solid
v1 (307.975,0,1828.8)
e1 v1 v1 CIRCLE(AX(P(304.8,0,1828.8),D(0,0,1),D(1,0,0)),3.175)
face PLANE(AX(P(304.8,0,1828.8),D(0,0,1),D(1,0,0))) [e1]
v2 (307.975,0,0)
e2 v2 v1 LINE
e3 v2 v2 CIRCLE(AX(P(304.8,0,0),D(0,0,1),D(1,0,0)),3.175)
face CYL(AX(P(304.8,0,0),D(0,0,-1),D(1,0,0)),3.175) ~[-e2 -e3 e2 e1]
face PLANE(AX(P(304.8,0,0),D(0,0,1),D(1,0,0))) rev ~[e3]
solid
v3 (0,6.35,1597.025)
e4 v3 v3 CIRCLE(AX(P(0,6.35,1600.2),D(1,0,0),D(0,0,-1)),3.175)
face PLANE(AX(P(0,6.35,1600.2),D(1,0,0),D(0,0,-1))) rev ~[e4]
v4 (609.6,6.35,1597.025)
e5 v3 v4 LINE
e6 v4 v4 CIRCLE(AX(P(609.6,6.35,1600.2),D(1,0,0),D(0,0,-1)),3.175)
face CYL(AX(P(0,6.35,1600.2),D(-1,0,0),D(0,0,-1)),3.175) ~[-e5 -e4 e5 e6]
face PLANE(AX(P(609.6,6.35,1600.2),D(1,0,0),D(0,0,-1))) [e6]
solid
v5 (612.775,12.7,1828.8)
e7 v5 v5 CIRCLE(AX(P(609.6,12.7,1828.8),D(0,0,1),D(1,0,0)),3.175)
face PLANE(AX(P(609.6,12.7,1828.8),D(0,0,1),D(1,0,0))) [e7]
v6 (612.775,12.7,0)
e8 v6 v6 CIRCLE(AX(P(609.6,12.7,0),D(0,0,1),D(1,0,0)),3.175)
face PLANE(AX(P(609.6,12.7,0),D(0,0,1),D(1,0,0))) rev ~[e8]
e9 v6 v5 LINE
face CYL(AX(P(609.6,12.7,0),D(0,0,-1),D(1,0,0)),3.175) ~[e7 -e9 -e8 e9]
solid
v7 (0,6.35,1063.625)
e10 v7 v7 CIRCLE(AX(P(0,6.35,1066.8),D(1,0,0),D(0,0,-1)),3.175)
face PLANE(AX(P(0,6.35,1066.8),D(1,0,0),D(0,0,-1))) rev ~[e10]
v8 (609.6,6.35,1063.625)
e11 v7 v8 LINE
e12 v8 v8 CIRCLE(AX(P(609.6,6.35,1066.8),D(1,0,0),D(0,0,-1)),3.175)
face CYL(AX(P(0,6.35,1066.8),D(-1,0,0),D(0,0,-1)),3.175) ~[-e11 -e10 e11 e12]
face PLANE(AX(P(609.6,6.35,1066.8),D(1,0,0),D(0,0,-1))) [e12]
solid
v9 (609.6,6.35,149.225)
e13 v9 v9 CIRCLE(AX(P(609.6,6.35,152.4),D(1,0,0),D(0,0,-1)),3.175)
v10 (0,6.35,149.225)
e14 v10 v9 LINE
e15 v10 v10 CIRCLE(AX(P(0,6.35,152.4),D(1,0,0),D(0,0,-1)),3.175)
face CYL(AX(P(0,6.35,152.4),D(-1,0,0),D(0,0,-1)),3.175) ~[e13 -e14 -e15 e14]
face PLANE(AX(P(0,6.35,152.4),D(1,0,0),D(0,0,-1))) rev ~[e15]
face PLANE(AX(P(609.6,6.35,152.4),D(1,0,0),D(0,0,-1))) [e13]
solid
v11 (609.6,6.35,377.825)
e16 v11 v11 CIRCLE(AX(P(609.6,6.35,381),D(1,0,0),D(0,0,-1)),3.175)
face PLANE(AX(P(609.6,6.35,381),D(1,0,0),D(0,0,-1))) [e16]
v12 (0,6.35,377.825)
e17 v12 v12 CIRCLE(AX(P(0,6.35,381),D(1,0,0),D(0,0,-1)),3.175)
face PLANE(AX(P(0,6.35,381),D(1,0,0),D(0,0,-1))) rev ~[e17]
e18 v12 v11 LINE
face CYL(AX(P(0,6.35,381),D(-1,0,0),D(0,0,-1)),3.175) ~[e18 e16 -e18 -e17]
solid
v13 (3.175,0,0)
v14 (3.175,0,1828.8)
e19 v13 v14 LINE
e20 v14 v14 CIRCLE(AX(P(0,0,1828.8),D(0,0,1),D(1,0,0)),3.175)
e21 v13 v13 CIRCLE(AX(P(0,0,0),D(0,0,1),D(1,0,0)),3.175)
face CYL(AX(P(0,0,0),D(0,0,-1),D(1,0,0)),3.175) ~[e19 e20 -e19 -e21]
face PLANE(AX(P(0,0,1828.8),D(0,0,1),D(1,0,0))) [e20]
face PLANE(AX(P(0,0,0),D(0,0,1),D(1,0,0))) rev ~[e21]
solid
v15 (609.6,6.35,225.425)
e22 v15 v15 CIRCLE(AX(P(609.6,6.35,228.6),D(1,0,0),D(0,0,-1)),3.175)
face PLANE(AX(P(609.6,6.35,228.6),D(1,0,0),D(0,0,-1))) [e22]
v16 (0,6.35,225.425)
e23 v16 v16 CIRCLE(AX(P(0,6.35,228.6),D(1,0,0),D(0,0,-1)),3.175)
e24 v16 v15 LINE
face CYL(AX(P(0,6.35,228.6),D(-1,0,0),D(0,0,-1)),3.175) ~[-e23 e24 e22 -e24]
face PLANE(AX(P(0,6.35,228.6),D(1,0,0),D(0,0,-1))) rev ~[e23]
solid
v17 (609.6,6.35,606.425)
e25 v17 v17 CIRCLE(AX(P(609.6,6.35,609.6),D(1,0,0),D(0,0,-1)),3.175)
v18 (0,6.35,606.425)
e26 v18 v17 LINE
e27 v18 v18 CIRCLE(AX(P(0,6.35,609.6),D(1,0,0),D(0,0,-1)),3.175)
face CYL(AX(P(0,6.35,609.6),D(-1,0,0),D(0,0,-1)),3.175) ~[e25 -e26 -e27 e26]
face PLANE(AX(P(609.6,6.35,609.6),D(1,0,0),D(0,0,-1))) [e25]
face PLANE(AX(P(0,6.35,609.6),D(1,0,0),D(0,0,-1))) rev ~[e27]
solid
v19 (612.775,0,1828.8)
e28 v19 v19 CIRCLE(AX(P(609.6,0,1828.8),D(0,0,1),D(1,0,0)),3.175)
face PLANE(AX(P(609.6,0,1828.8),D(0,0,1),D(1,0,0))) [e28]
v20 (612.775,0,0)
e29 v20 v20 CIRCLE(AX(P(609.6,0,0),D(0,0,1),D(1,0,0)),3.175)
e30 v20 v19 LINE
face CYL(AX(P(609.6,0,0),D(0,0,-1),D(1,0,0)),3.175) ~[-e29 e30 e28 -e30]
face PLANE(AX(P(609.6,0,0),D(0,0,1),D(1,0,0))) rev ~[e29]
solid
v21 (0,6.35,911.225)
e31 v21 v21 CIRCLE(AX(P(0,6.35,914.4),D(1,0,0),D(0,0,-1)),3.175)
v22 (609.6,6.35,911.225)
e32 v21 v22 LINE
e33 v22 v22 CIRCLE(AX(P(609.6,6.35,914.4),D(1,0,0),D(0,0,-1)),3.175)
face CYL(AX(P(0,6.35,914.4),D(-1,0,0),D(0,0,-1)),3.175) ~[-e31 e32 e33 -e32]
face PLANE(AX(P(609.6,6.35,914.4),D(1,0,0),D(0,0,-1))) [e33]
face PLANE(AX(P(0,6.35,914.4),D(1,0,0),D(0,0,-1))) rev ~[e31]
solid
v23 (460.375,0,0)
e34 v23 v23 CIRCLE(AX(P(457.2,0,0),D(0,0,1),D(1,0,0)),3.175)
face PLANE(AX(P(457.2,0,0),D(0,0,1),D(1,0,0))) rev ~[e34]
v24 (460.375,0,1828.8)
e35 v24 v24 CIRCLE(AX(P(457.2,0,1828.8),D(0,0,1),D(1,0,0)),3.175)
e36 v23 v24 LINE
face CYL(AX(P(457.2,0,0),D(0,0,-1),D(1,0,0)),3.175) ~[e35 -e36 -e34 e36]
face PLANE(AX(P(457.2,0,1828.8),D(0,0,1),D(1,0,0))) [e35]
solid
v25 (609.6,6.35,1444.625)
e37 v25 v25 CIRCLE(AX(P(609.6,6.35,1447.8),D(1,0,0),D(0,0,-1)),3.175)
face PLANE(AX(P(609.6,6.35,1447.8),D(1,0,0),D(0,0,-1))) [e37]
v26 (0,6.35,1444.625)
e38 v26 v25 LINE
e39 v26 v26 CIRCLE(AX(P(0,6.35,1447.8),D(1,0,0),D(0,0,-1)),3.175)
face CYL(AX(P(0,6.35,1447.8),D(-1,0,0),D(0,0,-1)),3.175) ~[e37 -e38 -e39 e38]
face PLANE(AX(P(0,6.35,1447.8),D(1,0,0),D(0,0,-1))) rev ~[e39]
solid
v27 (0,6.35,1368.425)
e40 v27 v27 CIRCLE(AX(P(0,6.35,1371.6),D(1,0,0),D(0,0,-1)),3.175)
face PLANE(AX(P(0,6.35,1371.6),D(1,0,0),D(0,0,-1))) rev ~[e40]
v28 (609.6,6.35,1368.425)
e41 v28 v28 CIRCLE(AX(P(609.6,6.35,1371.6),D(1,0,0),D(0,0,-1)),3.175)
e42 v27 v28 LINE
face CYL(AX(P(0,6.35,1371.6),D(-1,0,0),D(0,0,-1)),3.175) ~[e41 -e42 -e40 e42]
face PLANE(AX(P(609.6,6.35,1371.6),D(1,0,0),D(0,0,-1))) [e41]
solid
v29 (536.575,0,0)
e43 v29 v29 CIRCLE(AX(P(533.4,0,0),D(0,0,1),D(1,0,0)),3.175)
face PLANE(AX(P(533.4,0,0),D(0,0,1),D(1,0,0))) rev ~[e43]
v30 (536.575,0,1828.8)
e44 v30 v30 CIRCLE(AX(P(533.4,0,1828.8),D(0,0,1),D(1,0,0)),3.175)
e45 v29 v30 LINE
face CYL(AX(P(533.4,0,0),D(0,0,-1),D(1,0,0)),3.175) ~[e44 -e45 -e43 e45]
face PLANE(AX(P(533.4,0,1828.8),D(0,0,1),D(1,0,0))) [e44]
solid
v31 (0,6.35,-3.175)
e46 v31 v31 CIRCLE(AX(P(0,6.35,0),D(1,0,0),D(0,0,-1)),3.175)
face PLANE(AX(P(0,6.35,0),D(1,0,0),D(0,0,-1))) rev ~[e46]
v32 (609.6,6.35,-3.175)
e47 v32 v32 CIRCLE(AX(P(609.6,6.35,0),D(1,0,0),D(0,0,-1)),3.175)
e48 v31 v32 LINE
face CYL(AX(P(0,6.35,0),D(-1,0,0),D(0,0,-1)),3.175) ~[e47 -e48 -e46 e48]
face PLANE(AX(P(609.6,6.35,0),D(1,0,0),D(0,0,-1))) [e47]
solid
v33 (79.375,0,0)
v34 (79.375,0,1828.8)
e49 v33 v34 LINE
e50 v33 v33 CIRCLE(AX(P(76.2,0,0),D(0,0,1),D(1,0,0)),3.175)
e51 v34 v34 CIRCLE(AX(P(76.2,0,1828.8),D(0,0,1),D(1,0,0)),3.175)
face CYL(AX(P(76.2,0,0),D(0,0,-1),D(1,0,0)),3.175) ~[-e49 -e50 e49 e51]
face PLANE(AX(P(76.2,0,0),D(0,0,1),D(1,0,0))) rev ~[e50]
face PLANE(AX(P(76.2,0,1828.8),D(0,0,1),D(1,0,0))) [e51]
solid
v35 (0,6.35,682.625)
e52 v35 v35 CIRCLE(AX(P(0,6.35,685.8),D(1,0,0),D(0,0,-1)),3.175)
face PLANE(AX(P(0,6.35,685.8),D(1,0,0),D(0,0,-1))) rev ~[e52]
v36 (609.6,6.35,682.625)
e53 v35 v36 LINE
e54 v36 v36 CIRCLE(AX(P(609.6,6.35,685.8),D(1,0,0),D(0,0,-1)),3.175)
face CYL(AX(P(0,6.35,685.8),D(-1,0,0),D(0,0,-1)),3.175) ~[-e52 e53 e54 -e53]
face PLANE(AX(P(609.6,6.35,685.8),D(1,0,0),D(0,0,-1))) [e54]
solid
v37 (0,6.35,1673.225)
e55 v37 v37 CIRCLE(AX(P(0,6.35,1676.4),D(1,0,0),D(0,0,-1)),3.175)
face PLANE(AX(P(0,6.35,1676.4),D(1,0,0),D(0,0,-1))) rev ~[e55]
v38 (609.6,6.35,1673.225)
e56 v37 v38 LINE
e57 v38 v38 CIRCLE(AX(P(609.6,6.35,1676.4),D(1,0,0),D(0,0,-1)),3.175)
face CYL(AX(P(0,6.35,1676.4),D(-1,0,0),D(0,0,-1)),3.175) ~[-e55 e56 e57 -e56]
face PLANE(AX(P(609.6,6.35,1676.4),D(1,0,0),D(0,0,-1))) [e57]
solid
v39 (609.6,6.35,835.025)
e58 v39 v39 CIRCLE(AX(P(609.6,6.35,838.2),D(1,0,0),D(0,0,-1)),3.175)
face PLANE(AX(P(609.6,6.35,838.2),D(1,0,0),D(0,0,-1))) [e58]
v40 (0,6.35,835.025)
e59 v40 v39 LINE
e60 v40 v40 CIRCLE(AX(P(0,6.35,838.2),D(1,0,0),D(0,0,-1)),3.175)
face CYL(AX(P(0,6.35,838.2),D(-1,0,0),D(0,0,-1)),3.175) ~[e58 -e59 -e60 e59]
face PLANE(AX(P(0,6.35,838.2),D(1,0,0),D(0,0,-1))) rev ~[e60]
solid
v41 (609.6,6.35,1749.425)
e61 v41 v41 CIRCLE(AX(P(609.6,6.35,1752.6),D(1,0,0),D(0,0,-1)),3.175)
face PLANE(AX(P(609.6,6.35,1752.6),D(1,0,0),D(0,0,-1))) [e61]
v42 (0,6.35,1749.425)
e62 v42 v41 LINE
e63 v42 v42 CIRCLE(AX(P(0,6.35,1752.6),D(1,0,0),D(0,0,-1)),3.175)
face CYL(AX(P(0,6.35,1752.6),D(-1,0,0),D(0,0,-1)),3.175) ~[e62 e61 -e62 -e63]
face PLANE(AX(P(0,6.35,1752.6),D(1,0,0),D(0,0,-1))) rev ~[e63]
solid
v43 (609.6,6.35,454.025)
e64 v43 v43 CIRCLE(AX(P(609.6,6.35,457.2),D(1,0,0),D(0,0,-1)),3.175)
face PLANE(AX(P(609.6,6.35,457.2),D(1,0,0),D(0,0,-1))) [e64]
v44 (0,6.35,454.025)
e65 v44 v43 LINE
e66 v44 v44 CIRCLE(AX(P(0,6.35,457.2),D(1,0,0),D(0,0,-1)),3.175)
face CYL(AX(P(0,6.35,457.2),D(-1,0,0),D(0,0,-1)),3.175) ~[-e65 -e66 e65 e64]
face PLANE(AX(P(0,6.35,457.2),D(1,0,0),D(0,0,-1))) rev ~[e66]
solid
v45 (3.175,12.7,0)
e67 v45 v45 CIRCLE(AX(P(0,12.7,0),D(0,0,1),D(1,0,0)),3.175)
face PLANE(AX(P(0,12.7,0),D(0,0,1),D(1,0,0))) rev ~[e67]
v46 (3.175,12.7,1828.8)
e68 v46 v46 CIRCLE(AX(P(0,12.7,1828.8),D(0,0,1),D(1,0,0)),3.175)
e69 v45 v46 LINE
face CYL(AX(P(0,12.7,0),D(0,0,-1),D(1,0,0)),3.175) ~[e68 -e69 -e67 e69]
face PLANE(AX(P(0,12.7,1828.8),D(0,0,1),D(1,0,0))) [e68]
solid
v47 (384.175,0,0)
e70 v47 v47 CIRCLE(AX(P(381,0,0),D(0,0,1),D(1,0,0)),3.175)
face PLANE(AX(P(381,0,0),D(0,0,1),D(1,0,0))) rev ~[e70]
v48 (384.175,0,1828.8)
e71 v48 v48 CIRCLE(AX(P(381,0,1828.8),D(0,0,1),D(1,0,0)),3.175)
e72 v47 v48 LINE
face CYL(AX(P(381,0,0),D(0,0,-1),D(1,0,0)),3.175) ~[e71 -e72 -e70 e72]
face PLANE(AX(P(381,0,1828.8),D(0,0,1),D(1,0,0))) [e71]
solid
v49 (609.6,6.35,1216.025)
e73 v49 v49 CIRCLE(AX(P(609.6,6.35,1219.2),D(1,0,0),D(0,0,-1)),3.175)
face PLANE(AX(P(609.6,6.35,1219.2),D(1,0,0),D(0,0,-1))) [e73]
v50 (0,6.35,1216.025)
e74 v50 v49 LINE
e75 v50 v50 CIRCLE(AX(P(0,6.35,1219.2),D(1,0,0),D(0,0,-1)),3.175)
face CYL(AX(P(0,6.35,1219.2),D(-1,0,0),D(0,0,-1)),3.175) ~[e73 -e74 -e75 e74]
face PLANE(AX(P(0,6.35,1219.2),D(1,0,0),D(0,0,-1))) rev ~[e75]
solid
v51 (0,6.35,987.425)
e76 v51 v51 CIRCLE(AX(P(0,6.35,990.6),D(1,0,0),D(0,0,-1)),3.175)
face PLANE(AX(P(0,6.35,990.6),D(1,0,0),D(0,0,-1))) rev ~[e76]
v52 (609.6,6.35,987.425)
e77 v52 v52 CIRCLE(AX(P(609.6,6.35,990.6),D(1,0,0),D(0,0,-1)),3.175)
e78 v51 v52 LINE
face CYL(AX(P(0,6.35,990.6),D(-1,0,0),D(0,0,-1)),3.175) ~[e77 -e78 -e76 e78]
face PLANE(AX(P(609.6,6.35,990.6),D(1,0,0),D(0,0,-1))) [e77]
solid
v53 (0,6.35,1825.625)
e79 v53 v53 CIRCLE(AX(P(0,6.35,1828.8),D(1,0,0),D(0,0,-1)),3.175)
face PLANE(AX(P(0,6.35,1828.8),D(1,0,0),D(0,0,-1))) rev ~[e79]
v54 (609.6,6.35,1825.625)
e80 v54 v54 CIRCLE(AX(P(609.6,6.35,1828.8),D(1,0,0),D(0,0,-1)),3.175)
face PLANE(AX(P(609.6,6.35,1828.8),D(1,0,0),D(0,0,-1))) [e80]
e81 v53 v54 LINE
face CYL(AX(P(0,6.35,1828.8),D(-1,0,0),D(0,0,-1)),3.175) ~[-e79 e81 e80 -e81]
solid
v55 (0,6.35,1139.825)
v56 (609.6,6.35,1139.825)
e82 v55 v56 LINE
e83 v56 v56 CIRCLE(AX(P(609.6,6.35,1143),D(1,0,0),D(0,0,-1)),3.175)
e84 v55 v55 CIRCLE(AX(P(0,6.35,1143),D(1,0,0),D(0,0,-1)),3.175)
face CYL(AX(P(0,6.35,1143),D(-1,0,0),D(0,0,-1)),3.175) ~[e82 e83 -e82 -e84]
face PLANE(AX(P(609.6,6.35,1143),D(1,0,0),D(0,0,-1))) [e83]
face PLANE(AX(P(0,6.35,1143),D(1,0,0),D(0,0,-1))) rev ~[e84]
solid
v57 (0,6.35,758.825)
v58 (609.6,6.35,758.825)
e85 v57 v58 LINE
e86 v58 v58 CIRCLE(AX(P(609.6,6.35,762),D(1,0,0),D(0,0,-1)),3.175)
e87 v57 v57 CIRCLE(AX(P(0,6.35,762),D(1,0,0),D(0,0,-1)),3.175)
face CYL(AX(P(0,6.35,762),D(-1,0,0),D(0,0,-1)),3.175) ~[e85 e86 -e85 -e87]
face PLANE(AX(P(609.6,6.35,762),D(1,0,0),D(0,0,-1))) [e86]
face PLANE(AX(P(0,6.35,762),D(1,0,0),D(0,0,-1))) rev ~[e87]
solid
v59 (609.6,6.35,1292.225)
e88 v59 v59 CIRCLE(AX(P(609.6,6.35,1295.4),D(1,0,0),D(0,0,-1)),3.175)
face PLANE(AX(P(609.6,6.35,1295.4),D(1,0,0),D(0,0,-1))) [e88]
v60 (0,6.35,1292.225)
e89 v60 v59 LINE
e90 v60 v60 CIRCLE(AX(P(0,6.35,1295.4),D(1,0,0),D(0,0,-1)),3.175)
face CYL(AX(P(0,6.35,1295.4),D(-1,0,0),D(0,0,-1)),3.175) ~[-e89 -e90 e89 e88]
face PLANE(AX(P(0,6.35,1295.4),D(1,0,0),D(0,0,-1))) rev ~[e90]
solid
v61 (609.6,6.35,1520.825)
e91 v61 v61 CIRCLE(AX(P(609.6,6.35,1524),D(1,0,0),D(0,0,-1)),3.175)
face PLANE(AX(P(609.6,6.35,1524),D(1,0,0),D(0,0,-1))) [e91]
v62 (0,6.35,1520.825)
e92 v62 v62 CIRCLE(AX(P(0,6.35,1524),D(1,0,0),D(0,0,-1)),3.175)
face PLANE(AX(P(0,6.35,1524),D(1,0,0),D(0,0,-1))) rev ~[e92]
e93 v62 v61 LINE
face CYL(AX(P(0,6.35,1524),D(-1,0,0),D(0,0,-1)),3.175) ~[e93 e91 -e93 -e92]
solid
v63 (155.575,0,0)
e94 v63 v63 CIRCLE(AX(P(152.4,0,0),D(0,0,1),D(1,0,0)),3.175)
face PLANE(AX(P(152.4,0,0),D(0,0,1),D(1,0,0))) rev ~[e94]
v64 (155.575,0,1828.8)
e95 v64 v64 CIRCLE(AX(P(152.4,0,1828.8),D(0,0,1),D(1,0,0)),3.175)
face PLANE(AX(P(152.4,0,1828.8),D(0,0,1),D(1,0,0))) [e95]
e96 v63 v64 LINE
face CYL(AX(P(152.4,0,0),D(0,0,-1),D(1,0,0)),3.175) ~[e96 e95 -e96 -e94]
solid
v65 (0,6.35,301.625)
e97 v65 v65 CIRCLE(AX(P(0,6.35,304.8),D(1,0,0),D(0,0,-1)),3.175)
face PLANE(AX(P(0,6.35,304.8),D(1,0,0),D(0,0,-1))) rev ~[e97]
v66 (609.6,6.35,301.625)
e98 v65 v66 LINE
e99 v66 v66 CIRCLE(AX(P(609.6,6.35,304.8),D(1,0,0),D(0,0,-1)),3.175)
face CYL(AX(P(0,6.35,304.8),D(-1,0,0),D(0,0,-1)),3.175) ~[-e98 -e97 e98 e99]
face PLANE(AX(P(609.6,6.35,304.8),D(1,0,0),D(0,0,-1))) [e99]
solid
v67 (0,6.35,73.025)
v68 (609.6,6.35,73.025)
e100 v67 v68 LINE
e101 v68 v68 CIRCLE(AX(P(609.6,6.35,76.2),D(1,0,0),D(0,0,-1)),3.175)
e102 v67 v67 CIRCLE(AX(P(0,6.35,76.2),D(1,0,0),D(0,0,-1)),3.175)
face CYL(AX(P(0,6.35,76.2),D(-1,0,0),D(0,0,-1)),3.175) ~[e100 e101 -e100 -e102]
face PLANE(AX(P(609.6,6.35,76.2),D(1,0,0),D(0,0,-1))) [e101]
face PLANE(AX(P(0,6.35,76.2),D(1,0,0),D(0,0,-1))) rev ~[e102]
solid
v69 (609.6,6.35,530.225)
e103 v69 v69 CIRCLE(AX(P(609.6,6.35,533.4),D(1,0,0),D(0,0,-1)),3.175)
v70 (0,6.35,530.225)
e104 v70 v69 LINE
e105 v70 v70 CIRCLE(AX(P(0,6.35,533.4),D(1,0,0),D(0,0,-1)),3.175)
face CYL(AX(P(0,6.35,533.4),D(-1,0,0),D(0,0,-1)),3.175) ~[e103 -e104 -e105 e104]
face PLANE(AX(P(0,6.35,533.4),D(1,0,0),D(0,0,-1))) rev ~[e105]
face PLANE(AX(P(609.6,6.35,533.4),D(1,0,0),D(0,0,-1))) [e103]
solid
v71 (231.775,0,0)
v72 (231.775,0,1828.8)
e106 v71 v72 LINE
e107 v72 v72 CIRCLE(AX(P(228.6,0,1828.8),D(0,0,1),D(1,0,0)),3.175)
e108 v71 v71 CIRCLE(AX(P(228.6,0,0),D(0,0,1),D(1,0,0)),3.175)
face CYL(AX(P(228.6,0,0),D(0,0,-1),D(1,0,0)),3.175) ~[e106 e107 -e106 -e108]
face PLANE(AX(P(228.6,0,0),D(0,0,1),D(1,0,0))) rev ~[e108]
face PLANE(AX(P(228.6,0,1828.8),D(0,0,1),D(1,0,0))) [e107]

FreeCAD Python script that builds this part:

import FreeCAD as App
import Part
import Sketcher
from FreeCAD import Vector
Q = App.Units.Quantity

doc = App.newDocument("Part")
params = doc.addObject("Spreadsheet::Sheet", "Params")
for row, (alias, value) in enumerate([
    ("sketch1_diameter", "0.25 in"),
    ("pad1_length", "72 in"),
    ("sketch2_diameter", "0.25 in"),
    ("pad2_length", "72 in"),
    ("sketch3_diameter", "0.25 in"),
    ("pad3_length", "72 in"),
    ("sketch4_diameter", "0.25 in"),
    ("pad4_length", "72 in"),
    ("sketch5_diameter", "0.25 in"),
    ("pad5_length", "72 in"),
    ("sketch6_diameter", "0.25 in"),
    ("pad6_length", "72 in"),
    ("sketch7_diameter", "0.25 in"),
    ("pad7_length", "72 in"),
    ("sketch8_diameter", "0.25 in"),
    ("pad8_length", "72 in"),
    ("sketch9_diameter", "0.25 in"),
    ("pad9_length", "72 in"),
    ("sketch10_diameter", "0.25 in"),
    ("pad10_length", "72 in"),
    ("sketch11_diameter", "0.25 in"),
    ("pad11_length", "72 in"),
    ("sketch12_diameter", "0.25 in"),
    ("pad12_length", "24 in"),
    ("sketch13_diameter", "0.25 in"),
    ("pad13_length", "24 in"),
    ("sketch14_diameter", "0.25 in"),
    ("pad14_length", "24 in"),
    ("sketch15_diameter", "0.25 in"),
    ("pad15_length", "24 in"),
    ("sketch16_diameter", "0.25 in"),
    ("pad16_length", "24 in"),
    ("sketch17_diameter", "0.25 in"),
    ("pad17_length", "24 in"),
    ("sketch18_diameter", "0.25 in"),
    ("pad18_length", "24 in"),
    ("sketch19_diameter", "0.25 in"),
    ("pad19_length", "24 in"),
    ("sketch20_diameter", "0.25 in"),
    ("pad20_length", "24 in"),
    ("sketch21_diameter", "0.25 in"),
    ("pad21_length", "24 in"),
    ("sketch22_diameter", "0.25 in"),
    ("pad22_length", "24 in"),
    ("sketch23_diameter", "0.25 in"),
    ("pad23_length", "24 in"),
    ("sketch24_diameter", "0.25 in"),
    ("pad24_length", "24 in"),
    ("sketch25_diameter", "0.25 in"),
    ("pad25_length", "24 in"),
    ("sketch26_diameter", "0.25 in"),
    ("pad26_length", "24 in"),
    ("sketch27_diameter", "0.25 in"),
    ("pad27_length", "24 in"),
    ("sketch28_diameter", "0.25 in"),
    ("pad28_length", "24 in"),
    ("sketch29_diameter", "0.25 in"),
    ("pad29_length", "24 in"),
    ("sketch30_diameter", "0.25 in"),
    ("pad30_length", "24 in"),
    ("sketch31_diameter", "0.25 in"),
    ("pad31_length", "24 in"),
    ("sketch32_diameter", "0.25 in"),
    ("pad32_length", "24 in"),
    ("sketch33_diameter", "0.25 in"),
    ("pad33_length", "24 in"),
    ("sketch34_diameter", "0.25 in"),
    ("pad34_length", "24 in"),
    ("sketch35_diameter", "0.25 in"),
    ("pad35_length", "24 in"),
    ("sketch36_diameter", "0.25 in"),
    ("pad36_length", "24 in"),
], start=1):
    params.set(f"A{row}", alias)
    params.set(f"B{row}", "=" + value)
    params.setAlias(f"B{row}", alias)

body = doc.addObject("PartDesign::Body", "Body")

# Sketch on XY plane
sketch1 = doc.addObject("Sketcher::SketchObject", "Sketch")
body.addObject(sketch1)
sketch1.AttachmentSupport = (doc.XY_Plane, [""])
sketch1.MapMode = "FlatFace"
sketch1.addGeometry(Part.Circle(Vector(0, 0, 0), Vector(0, 0, 1), 3.2), False)
sketch1.addConstraint(Sketcher.Constraint("Coincident", 0, 3, -1, 1))
sketch1.addConstraint(Sketcher.Constraint("Diameter", 0, Q("0.25 in")))
sketch1.setExpression("Constraints[1]", "Params.sketch1_diameter")
pad1 = doc.addObject("PartDesign::Pad", "Pad")
body.addObject(pad1)
pad1.Profile = sketch1
pad1.setExpression("Length", "Params.pad1_length")
body2 = doc.addObject("PartDesign::Body", "Body001")

# Sketch on XY plane
sketch2 = doc.addObject("Sketcher::SketchObject", "Sketch001")
body2.addObject(sketch2)
sketch2.AttachmentSupport = (doc.getObject("XY_Plane001"), [""])
sketch2.MapMode = "FlatFace"
sketch2.addGeometry(Part.Circle(Vector(0, 12.7, 0), Vector(0, 0, 1), 3.2), False)
sketch2.addConstraint(Sketcher.Constraint("PointOnObject", 0, 3, -2))
sketch2.addConstraint(Sketcher.Constraint("Diameter", 0, Q("0.25 in")))
sketch2.addConstraint(Sketcher.Constraint("DistanceY", -1, 1, 0, 3, Q("0.5 in")))
sketch2.setExpression("Constraints[1]", "Params.sketch2_diameter")
pad2 = doc.addObject("PartDesign::Pad", "Pad001")
body2.addObject(pad2)
pad2.Profile = sketch2
pad2.setExpression("Length", "Params.pad2_length")
body3 = doc.addObject("PartDesign::Body", "Body002")

# Sketch on XY plane
sketch3 = doc.addObject("Sketcher::SketchObject", "Sketch002")
body3.addObject(sketch3)
sketch3.AttachmentSupport = (doc.getObject("XY_Plane002"), [""])
sketch3.MapMode = "FlatFace"
sketch3.addGeometry(Part.Circle(Vector(76.2, 0, 0), Vector(0, 0, 1), 3.2), False)
sketch3.addConstraint(Sketcher.Constraint("PointOnObject", 0, 3, -1))
sketch3.addConstraint(Sketcher.Constraint("Diameter", 0, Q("0.25 in")))
sketch3.addConstraint(Sketcher.Constraint("DistanceX", -1, 1, 0, 3, Q("3 in")))
sketch3.setExpression("Constraints[1]", "Params.sketch3_diameter")
pad3 = doc.addObject("PartDesign::Pad", "Pad002")
body3.addObject(pad3)
pad3.Profile = sketch3
pad3.setExpression("Length", "Params.pad3_length")
body4 = doc.addObject("PartDesign::Body", "Body003")

# Sketch on XY plane
sketch4 = doc.addObject("Sketcher::SketchObject", "Sketch003")
body4.addObject(sketch4)
sketch4.AttachmentSupport = (doc.getObject("XY_Plane003"), [""])
sketch4.MapMode = "FlatFace"
sketch4.addGeometry(Part.Circle(Vector(152.4, 0, 0), Vector(0, 0, 1), 3.2), False)
sketch4.addConstraint(Sketcher.Constraint("PointOnObject", 0, 3, -1))
sketch4.addConstraint(Sketcher.Constraint("Diameter", 0, Q("0.25 in")))
sketch4.addConstraint(Sketcher.Constraint("DistanceX", -1, 1, 0, 3, Q("6 in")))
sketch4.setExpression("Constraints[1]", "Params.sketch4_diameter")
pad4 = doc.addObject("PartDesign::Pad", "Pad003")
body4.addObject(pad4)
pad4.Profile = sketch4
pad4.setExpression("Length", "Params.pad4_length")
body5 = doc.addObject("PartDesign::Body", "Body004")

# Sketch on XY plane
sketch5 = doc.addObject("Sketcher::SketchObject", "Sketch004")
body5.addObject(sketch5)
sketch5.AttachmentSupport = (doc.getObject("XY_Plane004"), [""])
sketch5.MapMode = "FlatFace"
sketch5.addGeometry(Part.Circle(Vector(228.6, 0, 0), Vector(0, 0, 1), 3.2), False)
sketch5.addConstraint(Sketcher.Constraint("PointOnObject", 0, 3, -1))
sketch5.addConstraint(Sketcher.Constraint("Diameter", 0, Q("0.25 in")))
sketch5.addConstraint(Sketcher.Constraint("DistanceX", -1, 1, 0, 3, Q("9 in")))
sketch5.setExpression("Constraints[1]", "Params.sketch5_diameter")
pad5 = doc.addObject("PartDesign::Pad", "Pad004")
body5.addObject(pad5)
pad5.Profile = sketch5
pad5.setExpression("Length", "Params.pad5_length")
body6 = doc.addObject("PartDesign::Body", "Body005")

# Sketch on XY plane
sketch6 = doc.addObject("Sketcher::SketchObject", "Sketch005")
body6.addObject(sketch6)
sketch6.AttachmentSupport = (doc.getObject("XY_Plane005"), [""])
sketch6.MapMode = "FlatFace"
sketch6.addGeometry(Part.Circle(Vector(304.8, 0, 0), Vector(0, 0, 1), 3.2), False)
sketch6.addConstraint(Sketcher.Constraint("PointOnObject", 0, 3, -1))
sketch6.addConstraint(Sketcher.Constraint("Diameter", 0, Q("0.25 in")))
sketch6.addConstraint(Sketcher.Constraint("DistanceX", -1, 1, 0, 3, Q("12 in")))
sketch6.setExpression("Constraints[1]", "Params.sketch6_diameter")
pad6 = doc.addObject("PartDesign::Pad", "Pad005")
body6.addObject(pad6)
pad6.Profile = sketch6
pad6.setExpression("Length", "Params.pad6_length")
body7 = doc.addObject("PartDesign::Body", "Body006")

# Sketch on XY plane
sketch7 = doc.addObject("Sketcher::SketchObject", "Sketch006")
body7.addObject(sketch7)
sketch7.AttachmentSupport = (doc.getObject("XY_Plane006"), [""])
sketch7.MapMode = "FlatFace"
sketch7.addGeometry(Part.Circle(Vector(381, 0, 0), Vector(0, 0, 1), 3.2), False)
sketch7.addConstraint(Sketcher.Constraint("PointOnObject", 0, 3, -1))
sketch7.addConstraint(Sketcher.Constraint("Diameter", 0, Q("0.25 in")))
sketch7.addConstraint(Sketcher.Constraint("DistanceX", -1, 1, 0, 3, Q("15 in")))
sketch7.setExpression("Constraints[1]", "Params.sketch7_diameter")
pad7 = doc.addObject("PartDesign::Pad", "Pad006")
body7.addObject(pad7)
pad7.Profile = sketch7
pad7.setExpression("Length", "Params.pad7_length")
body8 = doc.addObject("PartDesign::Body", "Body007")

# Sketch on XY plane
sketch8 = doc.addObject("Sketcher::SketchObject", "Sketch007")
body8.addObject(sketch8)
sketch8.AttachmentSupport = (doc.getObject("XY_Plane007"), [""])
sketch8.MapMode = "FlatFace"
sketch8.addGeometry(Part.Circle(Vector(457.2, 0, 0), Vector(0, 0, 1), 3.2), False)
sketch8.addConstraint(Sketcher.Constraint("PointOnObject", 0, 3, -1))
sketch8.addConstraint(Sketcher.Constraint("Diameter", 0, Q("0.25 in")))
sketch8.addConstraint(Sketcher.Constraint("DistanceX", -1, 1, 0, 3, Q("18 in")))
sketch8.setExpression("Constraints[1]", "Params.sketch8_diameter")
pad8 = doc.addObject("PartDesign::Pad", "Pad007")
body8.addObject(pad8)
pad8.Profile = sketch8
pad8.setExpression("Length", "Params.pad8_length")
body9 = doc.addObject("PartDesign::Body", "Body008")

# Sketch on XY plane
sketch9 = doc.addObject("Sketcher::SketchObject", "Sketch008")
body9.addObject(sketch9)
sketch9.AttachmentSupport = (doc.getObject("XY_Plane008"), [""])
sketch9.MapMode = "FlatFace"
sketch9.addGeometry(Part.Circle(Vector(533.4, 0, 0), Vector(0, 0, 1), 3.2), False)
sketch9.addConstraint(Sketcher.Constraint("PointOnObject", 0, 3, -1))
sketch9.addConstraint(Sketcher.Constraint("Diameter", 0, Q("0.25 in")))
sketch9.addConstraint(Sketcher.Constraint("DistanceX", -1, 1, 0, 3, Q("21 in")))
sketch9.setExpression("Constraints[1]", "Params.sketch9_diameter")
pad9 = doc.addObject("PartDesign::Pad", "Pad008")
body9.addObject(pad9)
pad9.Profile = sketch9
pad9.setExpression("Length", "Params.pad9_length")
body10 = doc.addObject("PartDesign::Body", "Body009")

# Sketch on XY plane
sketch10 = doc.addObject("Sketcher::SketchObject", "Sketch009")
body10.addObject(sketch10)
sketch10.AttachmentSupport = (doc.getObject("XY_Plane009"), [""])
sketch10.MapMode = "FlatFace"
sketch10.addGeometry(Part.Circle(Vector(609.6, 0, 0), Vector(0, 0, 1), 3.2), False)
sketch10.addConstraint(Sketcher.Constraint("PointOnObject", 0, 3, -1))
sketch10.addConstraint(Sketcher.Constraint("Diameter", 0, Q("0.25 in")))
sketch10.addConstraint(Sketcher.Constraint("DistanceX", -1, 1, 0, 3, Q("24 in")))
sketch10.setExpression("Constraints[1]", "Params.sketch10_diameter")
pad10 = doc.addObject("PartDesign::Pad", "Pad009")
body10.addObject(pad10)
pad10.Profile = sketch10
pad10.setExpression("Length", "Params.pad10_length")
body11 = doc.addObject("PartDesign::Body", "Body010")

# Sketch on XY plane
sketch11 = doc.addObject("Sketcher::SketchObject", "Sketch010")
body11.addObject(sketch11)
sketch11.AttachmentSupport = (doc.getObject("XY_Plane010"), [""])
sketch11.MapMode = "FlatFace"
sketch11.addGeometry(Part.Circle(Vector(609.6, 12.7, 0), Vector(0, 0, 1), 3.2), False)
sketch11.addConstraint(Sketcher.Constraint("Diameter", 0, Q("0.25 in")))
sketch11.addConstraint(Sketcher.Constraint("DistanceX", -1, 1, 0, 3, Q("24 in")))
sketch11.addConstraint(Sketcher.Constraint("DistanceY", -1, 1, 0, 3, Q("0.5 in")))
sketch11.setExpression("Constraints[0]", "Params.sketch11_diameter")
pad11 = doc.addObject("PartDesign::Pad", "Pad010")
body11.addObject(pad11)
pad11.Profile = sketch11
pad11.setExpression("Length", "Params.pad11_length")
body12 = doc.addObject("PartDesign::Body", "Body011")

# Sketch on YZ plane
sketch12 = doc.addObject("Sketcher::SketchObject", "Sketch011")
body12.addObject(sketch12)
sketch12.AttachmentSupport = (doc.getObject("YZ_Plane011"), [""])
sketch12.MapMode = "FlatFace"
sketch12.addGeometry(Part.Circle(Vector(6.3, 0, 0), Vector(0, 0, 1), 3.2), False)
sketch12.addConstraint(Sketcher.Constraint("PointOnObject", 0, 3, -1))
sketch12.addConstraint(Sketcher.Constraint("Diameter", 0, Q("0.25 in")))
sketch12.addConstraint(Sketcher.Constraint("DistanceX", -1, 1, 0, 3, Q("0.25 in")))
sketch12.setExpression("Constraints[1]", "Params.sketch12_diameter")
pad12 = doc.addObject("PartDesign::Pad", "Pad011")
body12.addObject(pad12)
pad12.Profile = sketch12
pad12.setExpression("Length", "Params.pad12_length")
body13 = doc.addObject("PartDesign::Body", "Body012")

# Sketch on YZ plane
sketch13 = doc.addObject("Sketcher::SketchObject", "Sketch012")
body13.addObject(sketch13)
sketch13.AttachmentSupport = (doc.getObject("YZ_Plane012"), [""])
sketch13.MapMode = "FlatFace"
sketch13.addGeometry(Part.Circle(Vector(6.3, 76.2, 0), Vector(0, 0, 1), 3.2), False)
sketch13.addConstraint(Sketcher.Constraint("Diameter", 0, Q("0.25 in")))
sketch13.addConstraint(Sketcher.Constraint("DistanceY", -1, 1, 0, 3, Q("3 in")))
sketch13.addConstraint(Sketcher.Constraint("DistanceX", -1, 1, 0, 3, Q("0.25 in")))
sketch13.setExpression("Constraints[0]", "Params.sketch13_diameter")
pad13 = doc.addObject("PartDesign::Pad", "Pad012")
body13.addObject(pad13)
pad13.Profile = sketch13
pad13.setExpression("Length", "Params.pad13_length")
body14 = doc.addObject("PartDesign::Body", "Body013")

# Sketch on YZ plane
sketch14 = doc.addObject("Sketcher::SketchObject", "Sketch013")
body14.addObject(sketch14)
sketch14.AttachmentSupport = (doc.getObject("YZ_Plane013"), [""])
sketch14.MapMode = "FlatFace"
sketch14.addGeometry(Part.Circle(Vector(6.3, 152.4, 0), Vector(0, 0, 1), 3.2), False)
sketch14.addConstraint(Sketcher.Constraint("Diameter", 0, Q("0.25 in")))
sketch14.addConstraint(Sketcher.Constraint("DistanceY", -1, 1, 0, 3, Q("6 in")))
sketch14.addConstraint(Sketcher.Constraint("DistanceX", -1, 1, 0, 3, Q("0.25 in")))
sketch14.setExpression("Constraints[0]", "Params.sketch14_diameter")
pad14 = doc.addObject("PartDesign::Pad", "Pad013")
body14.addObject(pad14)
pad14.Profile = sketch14
pad14.setExpression("Length", "Params.pad14_length")
body15 = doc.addObject("PartDesign::Body", "Body014")

# Sketch on YZ plane
sketch15 = doc.addObject("Sketcher::SketchObject", "Sketch014")
body15.addObject(sketch15)
sketch15.AttachmentSupport = (doc.getObject("YZ_Plane014"), [""])
sketch15.MapMode = "FlatFace"
sketch15.addGeometry(Part.Circle(Vector(6.3, 228.6, 0), Vector(0, 0, 1), 3.2), False)
sketch15.addConstraint(Sketcher.Constraint("Diameter", 0, Q("0.25 in")))
sketch15.addConstraint(Sketcher.Constraint("DistanceY", -1, 1, 0, 3, Q("9 in")))
sketch15.addConstraint(Sketcher.Constraint("DistanceX", -1, 1, 0, 3, Q("0.25 in")))
sketch15.setExpression("Constraints[0]", "Params.sketch15_diameter")
pad15 = doc.addObject("PartDesign::Pad", "Pad014")
body15.addObject(pad15)
pad15.Profile = sketch15
pad15.setExpression("Length", "Params.pad15_length")
body16 = doc.addObject("PartDesign::Body", "Body015")

# Sketch on YZ plane
sketch16 = doc.addObject("Sketcher::SketchObject", "Sketch015")
body16.addObject(sketch16)
sketch16.AttachmentSupport = (doc.getObject("YZ_Plane015"), [""])
sketch16.MapMode = "FlatFace"
sketch16.addGeometry(Part.Circle(Vector(6.3, 304.8, 0), Vector(0, 0, 1), 3.2), False)
sketch16.addConstraint(Sketcher.Constraint("Diameter", 0, Q("0.25 in")))
sketch16.addConstraint(Sketcher.Constraint("DistanceY", -1, 1, 0, 3, Q("12 in")))
sketch16.addConstraint(Sketcher.Constraint("DistanceX", -1, 1, 0, 3, Q("0.25 in")))
sketch16.setExpression("Constraints[0]", "Params.sketch16_diameter")
pad16 = doc.addObject("PartDesign::Pad", "Pad015")
body16.addObject(pad16)
pad16.Profile = sketch16
pad16.setExpression("Length", "Params.pad16_length")
body17 = doc.addObject("PartDesign::Body", "Body016")

# Sketch on YZ plane
sketch17 = doc.addObject("Sketcher::SketchObject", "Sketch016")
body17.addObject(sketch17)
sketch17.AttachmentSupport = (doc.getObject("YZ_Plane016"), [""])
sketch17.MapMode = "FlatFace"
sketch17.addGeometry(Part.Circle(Vector(6.3, 381, 0), Vector(0, 0, 1), 3.2), False)
sketch17.addConstraint(Sketcher.Constraint("Diameter", 0, Q("0.25 in")))
sketch17.addConstraint(Sketcher.Constraint("DistanceY", -1, 1, 0, 3, Q("15 in")))
sketch17.addConstraint(Sketcher.Constraint("DistanceX", -1, 1, 0, 3, Q("0.25 in")))
sketch17.setExpression("Constraints[0]", "Params.sketch17_diameter")
pad17 = doc.addObject("PartDesign::Pad", "Pad016")
body17.addObject(pad17)
pad17.Profile = sketch17
pad17.setExpression("Length", "Params.pad17_length")
body18 = doc.addObject("PartDesign::Body", "Body017")

# Sketch on YZ plane
sketch18 = doc.addObject("Sketcher::SketchObject", "Sketch017")
body18.addObject(sketch18)
sketch18.AttachmentSupport = (doc.getObject("YZ_Plane017"), [""])
sketch18.MapMode = "FlatFace"
sketch18.addGeometry(Part.Circle(Vector(6.3, 457.2, 0), Vector(0, 0, 1), 3.2), False)
sketch18.addConstraint(Sketcher.Constraint("Diameter", 0, Q("0.25 in")))
sketch18.addConstraint(Sketcher.Constraint("DistanceY", -1, 1, 0, 3, Q("18 in")))
sketch18.addConstraint(Sketcher.Constraint("DistanceX", -1, 1, 0, 3, Q("0.25 in")))
sketch18.setExpression("Constraints[0]", "Params.sketch18_diameter")
pad18 = doc.addObject("PartDesign::Pad", "Pad017")
body18.addObject(pad18)
pad18.Profile = sketch18
pad18.setExpression("Length", "Params.pad18_length")
body19 = doc.addObject("PartDesign::Body", "Body018")

# Sketch on YZ plane
sketch19 = doc.addObject("Sketcher::SketchObject", "Sketch018")
body19.addObject(sketch19)
sketch19.AttachmentSupport = (doc.getObject("YZ_Plane018"), [""])
sketch19.MapMode = "FlatFace"
sketch19.addGeometry(Part.Circle(Vector(6.3, 533.4, 0), Vector(0, 0, 1), 3.2), False)
sketch19.addConstraint(Sketcher.Constraint("Diameter", 0, Q("0.25 in")))
sketch19.addConstraint(Sketcher.Constraint("DistanceY", -1, 1, 0, 3, Q("21 in")))
sketch19.addConstraint(Sketcher.Constraint("DistanceX", -1, 1, 0, 3, Q("0.25 in")))
sketch19.setExpression("Constraints[0]", "Params.sketch19_diameter")
pad19 = doc.addObject("PartDesign::Pad", "Pad018")
body19.addObject(pad19)
pad19.Profile = sketch19
pad19.setExpression("Length", "Params.pad19_length")
body20 = doc.addObject("PartDesign::Body", "Body019")

# Sketch on YZ plane
sketch20 = doc.addObject("Sketcher::SketchObject", "Sketch019")
body20.addObject(sketch20)
sketch20.AttachmentSupport = (doc.getObject("YZ_Plane019"), [""])
sketch20.MapMode = "FlatFace"
sketch20.addGeometry(Part.Circle(Vector(6.3, 609.6, 0), Vector(0, 0, 1), 3.2), False)
sketch20.addConstraint(Sketcher.Constraint("Diameter", 0, Q("0.25 in")))
sketch20.addConstraint(Sketcher.Constraint("DistanceY", -1, 1, 0, 3, Q("24 in")))
sketch20.addConstraint(Sketcher.Constraint("DistanceX", -1, 1, 0, 3, Q("0.25 in")))
sketch20.setExpression("Constraints[0]", "Params.sketch20_diameter")
pad20 = doc.addObject("PartDesign::Pad", "Pad019")
body20.addObject(pad20)
pad20.Profile = sketch20
pad20.setExpression("Length", "Params.pad20_length")
body21 = doc.addObject("PartDesign::Body", "Body020")

# Sketch on YZ plane
sketch21 = doc.addObject("Sketcher::SketchObject", "Sketch020")
body21.addObject(sketch21)
sketch21.AttachmentSupport = (doc.getObject("YZ_Plane020"), [""])
sketch21.MapMode = "FlatFace"
sketch21.addGeometry(Part.Circle(Vector(6.3, 685.8, 0), Vector(0, 0, 1), 3.2), False)
sketch21.addConstraint(Sketcher.Constraint("Diameter", 0, Q("0.25 in")))
sketch21.addConstraint(Sketcher.Constraint("DistanceY", -1, 1, 0, 3, Q("27 in")))
sketch21.addConstraint(Sketcher.Constraint("DistanceX", -1, 1, 0, 3, Q("0.25 in")))
sketch21.setExpression("Constraints[0]", "Params.sketch21_diameter")
pad21 = doc.addObject("PartDesign::Pad", "Pad020")
body21.addObject(pad21)
pad21.Profile = sketch21
pad21.setExpression("Length", "Params.pad21_length")
body22 = doc.addObject("PartDesign::Body", "Body021")

# Sketch on YZ plane
sketch22 = doc.addObject("Sketcher::SketchObject", "Sketch021")
body22.addObject(sketch22)
sketch22.AttachmentSupport = (doc.getObject("YZ_Plane021"), [""])
sketch22.MapMode = "FlatFace"
sketch22.addGeometry(Part.Circle(Vector(6.3, 762, 0), Vector(0, 0, 1), 3.2), False)
sketch22.addConstraint(Sketcher.Constraint("Diameter", 0, Q("0.25 in")))
sketch22.addConstraint(Sketcher.Constraint("DistanceY", -1, 1, 0, 3, Q("30 in")))
sketch22.addConstraint(Sketcher.Constraint("DistanceX", -1, 1, 0, 3, Q("0.25 in")))
sketch22.setExpression("Constraints[0]", "Params.sketch22_diameter")
pad22 = doc.addObject("PartDesign::Pad", "Pad021")
body22.addObject(pad22)
pad22.Profile = sketch22
pad22.setExpression("Length", "Params.pad22_length")
body23 = doc.addObject("PartDesign::Body", "Body022")

# Sketch on YZ plane
sketch23 = doc.addObject("Sketcher::SketchObject", "Sketch022")
body23.addObject(sketch23)
sketch23.AttachmentSupport = (doc.getObject("YZ_Plane022"), [""])
sketch23.MapMode = "FlatFace"
sketch23.addGeometry(Part.Circle(Vector(6.3, 838.2, 0), Vector(0, 0, 1), 3.2), False)
sketch23.addConstraint(Sketcher.Constraint("Diameter", 0, Q("0.25 in")))
sketch23.addConstraint(Sketcher.Constraint("DistanceY", -1, 1, 0, 3, Q("33 in")))
sketch23.addConstraint(Sketcher.Constraint("DistanceX", -1, 1, 0, 3, Q("0.25 in")))
sketch23.setExpression("Constraints[0]", "Params.sketch23_diameter")
pad23 = doc.addObject("PartDesign::Pad", "Pad022")
body23.addObject(pad23)
pad23.Profile = sketch23
pad23.setExpression("Length", "Params.pad23_length")
body24 = doc.addObject("PartDesign::Body", "Body023")

# Sketch on YZ plane
sketch24 = doc.addObject("Sketcher::SketchObject", "Sketch023")
body24.addObject(sketch24)
sketch24.AttachmentSupport = (doc.getObject("YZ_Plane023"), [""])
sketch24.MapMode = "FlatFace"
sketch24.addGeometry(Part.Circle(Vector(6.3, 914.4, 0), Vector(0, 0, 1), 3.2), False)
sketch24.addConstraint(Sketcher.Constraint("Diameter", 0, Q("0.25 in")))
sketch24.addConstraint(Sketcher.Constraint("DistanceY", -1, 1, 0, 3, Q("36 in")))
sketch24.addConstraint(Sketcher.Constraint("DistanceX", -1, 1, 0, 3, Q("0.25 in")))
sketch24.setExpression("Constraints[0]", "Params.sketch24_diameter")
pad24 = doc.addObject("PartDesign::Pad", "Pad023")
body24.addObject(pad24)
pad24.Profile = sketch24
pad24.setExpression("Length", "Params.pad24_length")
body25 = doc.addObject("PartDesign::Body", "Body024")

# Sketch on YZ plane
sketch25 = doc.addObject("Sketcher::SketchObject", "Sketch024")
body25.addObject(sketch25)
sketch25.AttachmentSupport = (doc.getObject("YZ_Plane024"), [""])
sketch25.MapMode = "FlatFace"
sketch25.addGeometry(Part.Circle(Vector(6.3, 990.6, 0), Vector(0, 0, 1), 3.2), False)
sketch25.addConstraint(Sketcher.Constraint("Diameter", 0, Q("0.25 in")))
sketch25.addConstraint(Sketcher.Constraint("DistanceY", -1, 1, 0, 3, Q("39 in")))
sketch25.addConstraint(Sketcher.Constraint("DistanceX", -1, 1, 0, 3, Q("0.25 in")))
sketch25.setExpression("Constraints[0]", "Params.sketch25_diameter")
pad25 = doc.addObject("PartDesign::Pad", "Pad024")
body25.addObject(pad25)
pad25.Profile = sketch25
pad25.setExpression("Length", "Params.pad25_length")
body26 = doc.addObject("PartDesign::Body", "Body025")

# Sketch on YZ plane
sketch26 = doc.addObject("Sketcher::SketchObject", "Sketch025")
body26.addObject(sketch26)
sketch26.AttachmentSupport = (doc.getObject("YZ_Plane025"), [""])
sketch26.MapMode = "FlatFace"
sketch26.addGeometry(Part.Circle(Vector(6.3, 1066.8, 0), Vector(0, 0, 1), 3.2), False)
sketch26.addConstraint(Sketcher.Constraint("Diameter", 0, Q("0.25 in")))
sketch26.addConstraint(Sketcher.Constraint("DistanceY", -1, 1, 0, 3, Q("42 in")))
sketch26.addConstraint(Sketcher.Constraint("DistanceX", -1, 1, 0, 3, Q("0.25 in")))
sketch26.setExpression("Constraints[0]", "Params.sketch26_diameter")
pad26 = doc.addObject("PartDesign::Pad", "Pad025")
body26.addObject(pad26)
pad26.Profile = sketch26
pad26.setExpression("Length", "Params.pad26_length")
body27 = doc.addObject("PartDesign::Body", "Body026")

# Sketch on YZ plane
sketch27 = doc.addObject("Sketcher::SketchObject", "Sketch026")
body27.addObject(sketch27)
sketch27.AttachmentSupport = (doc.getObject("YZ_Plane026"), [""])
sketch27.MapMode = "FlatFace"
sketch27.addGeometry(Part.Circle(Vector(6.3, 1143, 0), Vector(0, 0, 1), 3.2), False)
sketch27.addConstraint(Sketcher.Constraint("Diameter", 0, Q("0.25 in")))
sketch27.addConstraint(Sketcher.Constraint("DistanceY", -1, 1, 0, 3, Q("45 in")))
sketch27.addConstraint(Sketcher.Constraint("DistanceX", -1, 1, 0, 3, Q("0.25 in")))
sketch27.setExpression("Constraints[0]", "Params.sketch27_diameter")
pad27 = doc.addObject("PartDesign::Pad", "Pad026")
body27.addObject(pad27)
pad27.Profile = sketch27
pad27.setExpression("Length", "Params.pad27_length")
body28 = doc.addObject("PartDesign::Body", "Body027")

# Sketch on YZ plane
sketch28 = doc.addObject("Sketcher::SketchObject", "Sketch027")
body28.addObject(sketch28)
sketch28.AttachmentSupport = (doc.getObject("YZ_Plane027"), [""])
sketch28.MapMode = "FlatFace"
sketch28.addGeometry(Part.Circle(Vector(6.3, 1219.2, 0), Vector(0, 0, 1), 3.2), False)
sketch28.addConstraint(Sketcher.Constraint("Diameter", 0, Q("0.25 in")))
sketch28.addConstraint(Sketcher.Constraint("DistanceY", -1, 1, 0, 3, Q("48 in")))
sketch28.addConstraint(Sketcher.Constraint("DistanceX", -1, 1, 0, 3, Q("0.25 in")))
sketch28.setExpression("Constraints[0]", "Params.sketch28_diameter")
pad28 = doc.addObject("PartDesign::Pad", "Pad027")
body28.addObject(pad28)
pad28.Profile = sketch28
pad28.setExpression("Length", "Params.pad28_length")
body29 = doc.addObject("PartDesign::Body", "Body028")

# Sketch on YZ plane
sketch29 = doc.addObject("Sketcher::SketchObject", "Sketch028")
body29.addObject(sketch29)
sketch29.AttachmentSupport = (doc.getObject("YZ_Plane028"), [""])
sketch29.MapMode = "FlatFace"
sketch29.addGeometry(Part.Circle(Vector(6.3, 1295.4, 0), Vector(0, 0, 1), 3.2), False)
sketch29.addConstraint(Sketcher.Constraint("Diameter", 0, Q("0.25 in")))
sketch29.addConstraint(Sketcher.Constraint("DistanceY", -1, 1, 0, 3, Q("51 in")))
sketch29.addConstraint(Sketcher.Constraint("DistanceX", -1, 1, 0, 3, Q("0.25 in")))
sketch29.setExpression("Constraints[0]", "Params.sketch29_diameter")
pad29 = doc.addObject("PartDesign::Pad", "Pad028")
body29.addObject(pad29)
pad29.Profile = sketch29
pad29.setExpression("Length", "Params.pad29_length")
body30 = doc.addObject("PartDesign::Body", "Body029")

# Sketch on YZ plane
sketch30 = doc.addObject("Sketcher::SketchObject", "Sketch029")
body30.addObject(sketch30)
sketch30.AttachmentSupport = (doc.getObject("YZ_Plane029"), [""])
sketch30.MapMode = "FlatFace"
sketch30.addGeometry(Part.Circle(Vector(6.3, 1371.6, 0), Vector(0, 0, 1), 3.2), False)
sketch30.addConstraint(Sketcher.Constraint("Diameter", 0, Q("0.25 in")))
sketch30.addConstraint(Sketcher.Constraint("DistanceY", -1, 1, 0, 3, Q("54 in")))
sketch30.addConstraint(Sketcher.Constraint("DistanceX", -1, 1, 0, 3, Q("0.25 in")))
sketch30.setExpression("Constraints[0]", "Params.sketch30_diameter")
pad30 = doc.addObject("PartDesign::Pad", "Pad029")
body30.addObject(pad30)
pad30.Profile = sketch30
pad30.setExpression("Length", "Params.pad30_length")
body31 = doc.addObject("PartDesign::Body", "Body030")

# Sketch on YZ plane
sketch31 = doc.addObject("Sketcher::SketchObject", "Sketch030")
body31.addObject(sketch31)
sketch31.AttachmentSupport = (doc.getObject("YZ_Plane030"), [""])
sketch31.MapMode = "FlatFace"
sketch31.addGeometry(Part.Circle(Vector(6.3, 1447.8, 0), Vector(0, 0, 1), 3.2), False)
sketch31.addConstraint(Sketcher.Constraint("Diameter", 0, Q("0.25 in")))
sketch31.addConstraint(Sketcher.Constraint("DistanceY", -1, 1, 0, 3, Q("57 in")))
sketch31.addConstraint(Sketcher.Constraint("DistanceX", -1, 1, 0, 3, Q("0.25 in")))
sketch31.setExpression("Constraints[0]", "Params.sketch31_diameter")
pad31 = doc.addObject("PartDesign::Pad", "Pad030")
body31.addObject(pad31)
pad31.Profile = sketch31
pad31.setExpression("Length", "Params.pad31_length")
body32 = doc.addObject("PartDesign::Body", "Body031")

# Sketch on YZ plane
sketch32 = doc.addObject("Sketcher::SketchObject", "Sketch031")
body32.addObject(sketch32)
sketch32.AttachmentSupport = (doc.getObject("YZ_Plane031"), [""])
sketch32.MapMode = "FlatFace"
sketch32.addGeometry(Part.Circle(Vector(6.3, 1524, 0), Vector(0, 0, 1), 3.2), False)
sketch32.addConstraint(Sketcher.Constraint("Diameter", 0, Q("0.25 in")))
sketch32.addConstraint(Sketcher.Constraint("DistanceY", -1, 1, 0, 3, Q("60 in")))
sketch32.addConstraint(Sketcher.Constraint("DistanceX", -1, 1, 0, 3, Q("0.25 in")))
sketch32.setExpression("Constraints[0]", "Params.sketch32_diameter")
pad32 = doc.addObject("PartDesign::Pad", "Pad031")
body32.addObject(pad32)
pad32.Profile = sketch32
pad32.setExpression("Length", "Params.pad32_length")
body33 = doc.addObject("PartDesign::Body", "Body032")

# Sketch on YZ plane
sketch33 = doc.addObject("Sketcher::SketchObject", "Sketch032")
body33.addObject(sketch33)
sketch33.AttachmentSupport = (doc.getObject("YZ_Plane032"), [""])
sketch33.MapMode = "FlatFace"
sketch33.addGeometry(Part.Circle(Vector(6.3, 1600.2, 0), Vector(0, 0, 1), 3.2), False)
sketch33.addConstraint(Sketcher.Constraint("Diameter", 0, Q("0.25 in")))
sketch33.addConstraint(Sketcher.Constraint("DistanceY", -1, 1, 0, 3, Q("63 in")))
sketch33.addConstraint(Sketcher.Constraint("DistanceX", -1, 1, 0, 3, Q("0.25 in")))
sketch33.setExpression("Constraints[0]", "Params.sketch33_diameter")
pad33 = doc.addObject("PartDesign::Pad", "Pad032")
body33.addObject(pad33)
pad33.Profile = sketch33
pad33.setExpression("Length", "Params.pad33_length")
body34 = doc.addObject("PartDesign::Body", "Body033")

# Sketch on YZ plane
sketch34 = doc.addObject("Sketcher::SketchObject", "Sketch033")
body34.addObject(sketch34)
sketch34.AttachmentSupport = (doc.getObject("YZ_Plane033"), [""])
sketch34.MapMode = "FlatFace"
sketch34.addGeometry(Part.Circle(Vector(6.3, 1676.4, 0), Vector(0, 0, 1), 3.2), False)
sketch34.addConstraint(Sketcher.Constraint("Diameter", 0, Q("0.25 in")))
sketch34.addConstraint(Sketcher.Constraint("DistanceY", -1, 1, 0, 3, Q("66 in")))
sketch34.addConstraint(Sketcher.Constraint("DistanceX", -1, 1, 0, 3, Q("0.25 in")))
sketch34.setExpression("Constraints[0]", "Params.sketch34_diameter")
pad34 = doc.addObject("PartDesign::Pad", "Pad033")
body34.addObject(pad34)
pad34.Profile = sketch34
pad34.setExpression("Length", "Params.pad34_length")
body35 = doc.addObject("PartDesign::Body", "Body034")

# Sketch on YZ plane
sketch35 = doc.addObject("Sketcher::SketchObject", "Sketch034")
body35.addObject(sketch35)
sketch35.AttachmentSupport = (doc.getObject("YZ_Plane034"), [""])
sketch35.MapMode = "FlatFace"
sketch35.addGeometry(Part.Circle(Vector(6.3, 1752.6, 0), Vector(0, 0, 1), 3.2), False)
sketch35.addConstraint(Sketcher.Constraint("Diameter", 0, Q("0.25 in")))
sketch35.addConstraint(Sketcher.Constraint("DistanceY", -1, 1, 0, 3, Q("69 in")))
sketch35.addConstraint(Sketcher.Constraint("DistanceX", -1, 1, 0, 3, Q("0.25 in")))
sketch35.setExpression("Constraints[0]", "Params.sketch35_diameter")
pad35 = doc.addObject("PartDesign::Pad", "Pad034")
body35.addObject(pad35)
pad35.Profile = sketch35
pad35.setExpression("Length", "Params.pad35_length")
body36 = doc.addObject("PartDesign::Body", "Body035")

# Sketch on YZ plane
sketch36 = doc.addObject("Sketcher::SketchObject", "Sketch035")
body36.addObject(sketch36)
sketch36.AttachmentSupport = (doc.getObject("YZ_Plane035"), [""])
sketch36.MapMode = "FlatFace"
sketch36.addGeometry(Part.Circle(Vector(6.3, 1828.8, 0), Vector(0, 0, 1), 3.2), False)
sketch36.addConstraint(Sketcher.Constraint("Diameter", 0, Q("0.25 in")))
sketch36.addConstraint(Sketcher.Constraint("DistanceY", -1, 1, 0, 3, Q("72 in")))
sketch36.addConstraint(Sketcher.Constraint("DistanceX", -1, 1, 0, 3, Q("0.25 in")))
sketch36.setExpression("Constraints[0]", "Params.sketch36_diameter")
pad36 = doc.addObject("PartDesign::Pad", "Pad035")
body36.addObject(pad36)
pad36.Profile = sketch36
pad36.setExpression("Length", "Params.pad36_length")

doc.recompute()
